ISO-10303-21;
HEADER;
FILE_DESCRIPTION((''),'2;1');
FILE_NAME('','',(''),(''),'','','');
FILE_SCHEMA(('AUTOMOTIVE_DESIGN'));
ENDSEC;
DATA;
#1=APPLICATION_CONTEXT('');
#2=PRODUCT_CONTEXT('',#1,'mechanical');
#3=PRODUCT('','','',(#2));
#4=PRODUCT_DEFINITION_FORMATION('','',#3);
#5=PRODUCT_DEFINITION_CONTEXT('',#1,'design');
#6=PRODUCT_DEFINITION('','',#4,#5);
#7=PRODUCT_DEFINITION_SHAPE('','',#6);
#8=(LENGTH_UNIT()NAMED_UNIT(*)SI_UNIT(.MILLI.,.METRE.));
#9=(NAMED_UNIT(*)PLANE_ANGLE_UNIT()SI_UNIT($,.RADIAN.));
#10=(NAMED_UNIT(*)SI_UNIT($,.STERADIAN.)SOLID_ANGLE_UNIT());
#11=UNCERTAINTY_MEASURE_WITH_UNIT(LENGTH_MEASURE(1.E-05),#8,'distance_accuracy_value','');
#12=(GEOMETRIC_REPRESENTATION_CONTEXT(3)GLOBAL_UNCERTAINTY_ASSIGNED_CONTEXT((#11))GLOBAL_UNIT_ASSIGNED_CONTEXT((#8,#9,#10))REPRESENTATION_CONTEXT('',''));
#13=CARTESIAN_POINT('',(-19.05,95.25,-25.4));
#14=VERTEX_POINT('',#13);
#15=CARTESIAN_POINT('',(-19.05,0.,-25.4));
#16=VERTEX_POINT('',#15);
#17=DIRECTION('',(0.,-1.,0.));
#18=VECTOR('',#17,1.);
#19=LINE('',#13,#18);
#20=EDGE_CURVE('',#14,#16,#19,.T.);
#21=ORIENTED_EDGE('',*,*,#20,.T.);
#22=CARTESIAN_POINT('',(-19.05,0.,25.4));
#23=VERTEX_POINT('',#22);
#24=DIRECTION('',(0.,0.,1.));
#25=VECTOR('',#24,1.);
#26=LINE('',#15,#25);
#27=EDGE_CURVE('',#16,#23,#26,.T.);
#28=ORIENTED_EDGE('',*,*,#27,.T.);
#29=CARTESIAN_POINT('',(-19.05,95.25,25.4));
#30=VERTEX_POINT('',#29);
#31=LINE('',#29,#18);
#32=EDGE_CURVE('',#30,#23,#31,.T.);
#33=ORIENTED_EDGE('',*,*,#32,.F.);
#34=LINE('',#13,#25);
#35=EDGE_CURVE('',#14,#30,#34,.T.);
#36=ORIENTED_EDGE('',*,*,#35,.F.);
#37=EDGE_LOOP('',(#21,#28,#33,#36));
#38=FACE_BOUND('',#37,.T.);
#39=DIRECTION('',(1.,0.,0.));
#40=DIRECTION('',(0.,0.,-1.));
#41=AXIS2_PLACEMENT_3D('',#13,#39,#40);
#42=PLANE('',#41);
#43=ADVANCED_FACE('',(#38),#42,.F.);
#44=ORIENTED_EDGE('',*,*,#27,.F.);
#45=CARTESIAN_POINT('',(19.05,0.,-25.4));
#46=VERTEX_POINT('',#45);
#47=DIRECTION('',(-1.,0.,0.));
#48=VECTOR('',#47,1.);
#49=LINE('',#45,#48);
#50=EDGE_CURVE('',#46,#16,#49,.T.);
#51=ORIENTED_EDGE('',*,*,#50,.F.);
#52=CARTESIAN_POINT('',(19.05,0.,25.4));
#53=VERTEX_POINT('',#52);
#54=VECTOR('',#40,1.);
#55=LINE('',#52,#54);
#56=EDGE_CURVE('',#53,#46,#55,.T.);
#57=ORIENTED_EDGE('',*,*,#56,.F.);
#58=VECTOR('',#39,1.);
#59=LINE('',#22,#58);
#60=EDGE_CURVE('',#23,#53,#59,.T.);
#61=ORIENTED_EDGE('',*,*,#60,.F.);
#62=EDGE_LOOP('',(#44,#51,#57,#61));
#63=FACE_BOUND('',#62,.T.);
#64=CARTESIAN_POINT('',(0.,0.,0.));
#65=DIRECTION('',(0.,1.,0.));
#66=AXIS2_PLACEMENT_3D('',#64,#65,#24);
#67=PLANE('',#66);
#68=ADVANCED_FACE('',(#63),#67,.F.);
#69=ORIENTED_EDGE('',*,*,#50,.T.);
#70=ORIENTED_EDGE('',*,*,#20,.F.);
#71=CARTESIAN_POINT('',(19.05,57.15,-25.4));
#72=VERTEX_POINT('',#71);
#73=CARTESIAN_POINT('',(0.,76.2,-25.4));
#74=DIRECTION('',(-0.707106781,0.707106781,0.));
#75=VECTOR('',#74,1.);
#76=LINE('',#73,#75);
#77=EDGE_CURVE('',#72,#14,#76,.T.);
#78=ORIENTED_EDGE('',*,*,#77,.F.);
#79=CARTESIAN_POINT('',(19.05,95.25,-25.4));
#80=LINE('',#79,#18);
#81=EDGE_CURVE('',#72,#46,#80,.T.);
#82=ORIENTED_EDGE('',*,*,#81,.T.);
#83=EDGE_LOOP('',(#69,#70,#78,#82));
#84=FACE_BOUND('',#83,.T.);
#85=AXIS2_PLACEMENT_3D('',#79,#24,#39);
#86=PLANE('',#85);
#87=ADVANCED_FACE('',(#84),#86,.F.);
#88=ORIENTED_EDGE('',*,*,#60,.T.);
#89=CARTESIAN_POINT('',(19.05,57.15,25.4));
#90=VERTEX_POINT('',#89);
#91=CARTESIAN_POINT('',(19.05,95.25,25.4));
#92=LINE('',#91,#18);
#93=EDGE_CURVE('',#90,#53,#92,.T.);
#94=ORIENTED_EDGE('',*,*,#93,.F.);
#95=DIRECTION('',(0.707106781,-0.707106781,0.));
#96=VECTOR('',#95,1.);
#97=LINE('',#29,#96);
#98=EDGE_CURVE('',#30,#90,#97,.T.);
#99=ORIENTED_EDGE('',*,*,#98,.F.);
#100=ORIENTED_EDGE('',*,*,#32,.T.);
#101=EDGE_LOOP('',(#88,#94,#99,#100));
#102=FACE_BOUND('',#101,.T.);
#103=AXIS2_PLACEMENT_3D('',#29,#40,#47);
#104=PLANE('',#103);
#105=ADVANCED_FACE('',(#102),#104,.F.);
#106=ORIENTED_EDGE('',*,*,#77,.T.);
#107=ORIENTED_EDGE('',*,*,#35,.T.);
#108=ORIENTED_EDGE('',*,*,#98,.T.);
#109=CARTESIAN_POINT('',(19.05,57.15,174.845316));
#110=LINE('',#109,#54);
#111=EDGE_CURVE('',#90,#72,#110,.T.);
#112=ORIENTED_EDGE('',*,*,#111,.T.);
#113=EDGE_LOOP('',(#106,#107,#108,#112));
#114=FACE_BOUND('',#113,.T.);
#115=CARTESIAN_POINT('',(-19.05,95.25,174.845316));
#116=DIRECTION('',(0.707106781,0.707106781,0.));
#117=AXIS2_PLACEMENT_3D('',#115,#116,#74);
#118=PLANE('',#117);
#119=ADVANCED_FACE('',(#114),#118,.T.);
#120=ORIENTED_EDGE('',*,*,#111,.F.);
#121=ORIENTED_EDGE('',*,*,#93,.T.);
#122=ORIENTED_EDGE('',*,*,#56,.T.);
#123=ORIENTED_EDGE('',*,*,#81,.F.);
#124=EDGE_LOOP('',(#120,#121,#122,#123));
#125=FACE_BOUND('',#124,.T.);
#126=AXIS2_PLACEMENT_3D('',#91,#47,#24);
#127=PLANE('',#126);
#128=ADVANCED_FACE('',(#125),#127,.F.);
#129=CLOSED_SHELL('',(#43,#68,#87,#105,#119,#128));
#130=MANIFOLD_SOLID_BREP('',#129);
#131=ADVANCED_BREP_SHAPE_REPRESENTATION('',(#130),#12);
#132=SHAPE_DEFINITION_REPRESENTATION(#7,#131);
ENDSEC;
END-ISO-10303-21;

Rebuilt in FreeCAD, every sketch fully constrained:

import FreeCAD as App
import Part
import Sketcher
Q = App.Units.Quantity


def add_polygon(sketch, points):
    """Adds a closed chain of lines whose ends are joined by coincident constraints."""
    first, n = sketch.GeometryCount, len(points)
    for a, b in zip(points, points[1:] + points[:1]):
        sketch.addGeometry(Part.LineSegment(App.Vector(*a, 0), App.Vector(*b, 0)), False)
    for i in range(n):
        sketch.addConstraint(Sketcher.Constraint("Coincident", first + i, 2, first + (i + 1) % n, 1))

doc = App.newDocument("Part")
body = doc.addObject("PartDesign::Body", "Body")

# Sketch on XZ plane
sketch1 = body.newObject("Sketcher::SketchObject", "Sketch")
sketch1.AttachmentSupport = (doc.getObject("XZ_Plane"), [""])
sketch1.MapMode = "FlatFace"
add_polygon(sketch1, [(-19, -25), (-19, 25), (19, 25), (19, -25)])  # lines 0-3
sketch1.addConstraint(Sketcher.Constraint("Vertical", 0))
sketch1.addConstraint(Sketcher.Constraint("Horizontal", 1))
sketch1.addConstraint(Sketcher.Constraint("Vertical", 2))
sketch1.addConstraint(Sketcher.Constraint("Horizontal", 3))
sketch1.addConstraint(Sketcher.Constraint("Symmetric", 0, 2, 2, 2, -1, 1))
sketch1.addConstraint(Sketcher.Constraint("DistanceY", 0, 1, 0, 2, Q("2 in")))
sketch1.addConstraint(Sketcher.Constraint("DistanceX", 1, 1, 1, 2, Q("1.5 in")))
pad1 = body.newObject("PartDesign::Pad", "Pad")
pad1.Profile = sketch1
pad1.Length = Q("3.75 in")
pad1.Reversed = True

# Sketch on XY plane
sketch2 = body.newObject("Sketcher::SketchObject", "Sketch001")
sketch2.AttachmentSupport = (doc.getObject("XY_Plane"), [""])
sketch2.MapMode = "FlatFace"
add_polygon(sketch2, [(-171, 247), (171, -95), (476, 209), (133, 552)])  # lines 0-3
sketch2.addConstraint(Sketcher.Constraint("Perpendicular", 0, 1))
sketch2.addConstraint(Sketcher.Constraint("Perpendicular", 1, 2))
sketch2.addConstraint(Sketcher.Constraint("Perpendicular", 2, 3))
sketch2.addConstraint(Sketcher.Constraint("Angle", 0, Q("-45 deg")))
sketch2.addConstraint(Sketcher.Constraint("DistanceX", 2, 2, 0, 2, Q("1.5 in")))
sketch2.addConstraint(Sketcher.Constraint("Distance", 1, Q("430.349558 mm")))
sketch2.addConstraint(Sketcher.Constraint("DistanceX", -1, 1, 0, 2, Q("171.201545 mm")))
sketch2.addConstraint(Sketcher.Constraint("DistanceY", 0, 2, -1, 1, Q("95.001545 mm")))
pocket1 = body.newObject("PartDesign::Pocket", "Pocket")
pocket1.Profile = sketch2
pocket1.Type = "ThroughAll"
pocket1.Midplane = True

doc.recompute()
